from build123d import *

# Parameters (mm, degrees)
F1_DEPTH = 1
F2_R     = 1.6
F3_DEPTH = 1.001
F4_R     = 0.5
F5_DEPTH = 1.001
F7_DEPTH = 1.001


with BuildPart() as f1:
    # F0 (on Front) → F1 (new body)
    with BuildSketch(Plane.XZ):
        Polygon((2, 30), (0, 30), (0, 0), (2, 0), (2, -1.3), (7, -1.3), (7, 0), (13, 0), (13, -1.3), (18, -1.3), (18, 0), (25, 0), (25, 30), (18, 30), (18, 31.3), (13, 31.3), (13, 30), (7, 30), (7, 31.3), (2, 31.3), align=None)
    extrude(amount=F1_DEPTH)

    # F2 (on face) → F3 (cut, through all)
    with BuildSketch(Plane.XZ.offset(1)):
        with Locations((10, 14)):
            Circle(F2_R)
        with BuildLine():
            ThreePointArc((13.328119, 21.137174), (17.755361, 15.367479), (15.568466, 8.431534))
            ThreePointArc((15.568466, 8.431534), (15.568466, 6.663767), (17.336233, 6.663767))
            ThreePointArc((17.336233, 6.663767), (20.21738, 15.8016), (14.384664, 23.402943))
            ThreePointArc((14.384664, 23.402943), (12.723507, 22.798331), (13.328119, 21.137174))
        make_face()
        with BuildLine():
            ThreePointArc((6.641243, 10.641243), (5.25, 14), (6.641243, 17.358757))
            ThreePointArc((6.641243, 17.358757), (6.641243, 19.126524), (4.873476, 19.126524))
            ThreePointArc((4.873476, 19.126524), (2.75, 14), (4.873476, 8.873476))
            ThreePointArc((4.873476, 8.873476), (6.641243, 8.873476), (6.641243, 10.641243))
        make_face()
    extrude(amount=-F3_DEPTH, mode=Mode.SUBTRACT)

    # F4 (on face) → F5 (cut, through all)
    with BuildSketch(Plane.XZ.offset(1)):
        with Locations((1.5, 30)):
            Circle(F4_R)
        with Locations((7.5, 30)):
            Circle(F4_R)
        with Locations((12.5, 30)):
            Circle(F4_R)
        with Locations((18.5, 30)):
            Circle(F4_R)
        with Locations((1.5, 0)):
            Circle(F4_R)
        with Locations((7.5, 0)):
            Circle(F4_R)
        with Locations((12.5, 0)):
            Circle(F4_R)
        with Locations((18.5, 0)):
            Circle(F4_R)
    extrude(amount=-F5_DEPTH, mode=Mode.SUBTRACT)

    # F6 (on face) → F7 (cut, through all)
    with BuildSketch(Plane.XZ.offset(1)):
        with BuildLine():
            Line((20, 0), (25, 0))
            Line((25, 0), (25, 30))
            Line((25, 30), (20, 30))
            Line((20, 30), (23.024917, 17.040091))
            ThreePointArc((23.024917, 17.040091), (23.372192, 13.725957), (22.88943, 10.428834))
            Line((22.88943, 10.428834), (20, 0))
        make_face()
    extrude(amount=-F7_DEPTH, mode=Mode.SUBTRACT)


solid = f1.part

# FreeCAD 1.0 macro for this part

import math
import FreeCAD as App
import Part
import Sketcher

V = App.Vector
Q = App.Units.Quantity

doc = App.newDocument("Part")
params = doc.addObject("Spreadsheet::Sheet", "Params")
for row, (alias, value) in enumerate([
    ("sketch1_width", "2 mm"),
    ("sketch1_width2", "5 mm"),
    ("sketch1_width3", "6 mm"),
    ("sketch1_width4", "7 mm"),
    ("sketch1_height", "30 mm"),
    ("pad1_length", "1 mm"),
    ("sketch2_diameter", "3.2 mm"),
    ("sketch2_radius", "1.25 mm"),
    ("sketch2_radius2", "4.749999 mm"),
    ("sketch3_diameter", "1 mm"),
    ("sketch4_width", "5 mm"),
    ("sketch4_height", "30 mm"),
], start=1):
    params.set(f"A{row}", alias)
    params.set(f"B{row}", "=" + value)
    params.setAlias(f"B{row}", alias)

body = doc.addObject("PartDesign::Body", "Body")

sketch1 = body.newObject("Sketcher::SketchObject", "Sketch")
sketch1.AttachmentSupport = (doc.getObject("XZ_Plane"), [""])
sketch1.MapMode = "FlatFace"
sketch1.addGeometry(Part.LineSegment(V(2, 30, 0), V(0, 30, 0)), False)
sketch1.addGeometry(Part.LineSegment(V(0, 30, 0), V(0, 0, 0)), False)
sketch1.addGeometry(Part.LineSegment(V(0, 0, 0), V(2, 0, 0)), False)
sketch1.addGeometry(Part.LineSegment(V(2, 0, 0), V(2, -1.3, 0)), False)
sketch1.addGeometry(Part.LineSegment(V(2, -1.3, 0), V(7, -1.3, 0)), False)
sketch1.addGeometry(Part.LineSegment(V(7, -1.3, 0), V(7, 0, 0)), False)
sketch1.addGeometry(Part.LineSegment(V(7, 0, 0), V(13, 0, 0)), False)
sketch1.addGeometry(Part.LineSegment(V(13, 0, 0), V(13, -1.3, 0)), False)
sketch1.addGeometry(Part.LineSegment(V(13, -1.3, 0), V(18, -1.3, 0)), False)
sketch1.addGeometry(Part.LineSegment(V(18, -1.3, 0), V(18, 0, 0)), False)
sketch1.addGeometry(Part.LineSegment(V(18, 0, 0), V(25, 0, 0)), False)
sketch1.addGeometry(Part.LineSegment(V(25, 0, 0), V(25, 30, 0)), False)
sketch1.addGeometry(Part.LineSegment(V(25, 30, 0), V(18, 30, 0)), False)
sketch1.addGeometry(Part.LineSegment(V(18, 30, 0), V(18, 31.3, 0)), False)
sketch1.addGeometry(Part.LineSegment(V(18, 31.3, 0), V(13, 31.3, 0)), False)
sketch1.addGeometry(Part.LineSegment(V(13, 31.3, 0), V(13, 30, 0)), False)
sketch1.addGeometry(Part.LineSegment(V(13, 30, 0), V(7, 30, 0)), False)
sketch1.addGeometry(Part.LineSegment(V(7, 30, 0), V(7, 31.3, 0)), False)
sketch1.addGeometry(Part.LineSegment(V(7, 31.3, 0), V(2, 31.3, 0)), False)
sketch1.addGeometry(Part.LineSegment(V(2, 31.3, 0), V(2, 30, 0)), False)
sketch1.addConstraint(Sketcher.Constraint("Coincident", 0, 2, 1, 1))
sketch1.addConstraint(Sketcher.Constraint("Coincident", 1, 2, 2, 1))
sketch1.addConstraint(Sketcher.Constraint("Coincident", 2, 2, 3, 1))
sketch1.addConstraint(Sketcher.Constraint("Coincident", 3, 2, 4, 1))
sketch1.addConstraint(Sketcher.Constraint("Coincident", 4, 2, 5, 1))
sketch1.addConstraint(Sketcher.Constraint("Coincident", 5, 2, 6, 1))
sketch1.addConstraint(Sketcher.Constraint("Coincident", 6, 2, 7, 1))
sketch1.addConstraint(Sketcher.Constraint("Coincident", 7, 2, 8, 1))
sketch1.addConstraint(Sketcher.Constraint("Coincident", 8, 2, 9, 1))
sketch1.addConstraint(Sketcher.Constraint("Coincident", 9, 2, 10, 1))
sketch1.addConstraint(Sketcher.Constraint("Coincident", 10, 2, 11, 1))
sketch1.addConstraint(Sketcher.Constraint("Coincident", 11, 2, 12, 1))
sketch1.addConstraint(Sketcher.Constraint("Coincident", 12, 2, 13, 1))
sketch1.addConstraint(Sketcher.Constraint("Coincident", 13, 2, 14, 1))
sketch1.addConstraint(Sketcher.Constraint("Coincident", 14, 2, 15, 1))
sketch1.addConstraint(Sketcher.Constraint("Coincident", 15, 2, 16, 1))
sketch1.addConstraint(Sketcher.Constraint("Coincident", 16, 2, 17, 1))
sketch1.addConstraint(Sketcher.Constraint("Coincident", 17, 2, 18, 1))
sketch1.addConstraint(Sketcher.Constraint("Coincident", 18, 2, 19, 1))
sketch1.addConstraint(Sketcher.Constraint("Coincident", 19, 2, 0, 1))
sketch1.addConstraint(Sketcher.Constraint("Horizontal", 0))
sketch1.addConstraint(Sketcher.Constraint("Vertical", 1))
sketch1.addConstraint(Sketcher.Constraint("Horizontal", 2))
sketch1.addConstraint(Sketcher.Constraint("Vertical", 3))
sketch1.addConstraint(Sketcher.Constraint("Horizontal", 4))
sketch1.addConstraint(Sketcher.Constraint("Vertical", 5))
sketch1.addConstraint(Sketcher.Constraint("Horizontal", 6))
sketch1.addConstraint(Sketcher.Constraint("Vertical", 7))
sketch1.addConstraint(Sketcher.Constraint("Horizontal", 8))
sketch1.addConstraint(Sketcher.Constraint("Vertical", 9))
sketch1.addConstraint(Sketcher.Constraint("Horizontal", 10))
sketch1.addConstraint(Sketcher.Constraint("Vertical", 11))
sketch1.addConstraint(Sketcher.Constraint("Horizontal", 12))
sketch1.addConstraint(Sketcher.Constraint("Vertical", 13))
sketch1.addConstraint(Sketcher.Constraint("Horizontal", 14))
sketch1.addConstraint(Sketcher.Constraint("Vertical", 15))
sketch1.addConstraint(Sketcher.Constraint("Horizontal", 16))
sketch1.addConstraint(Sketcher.Constraint("Vertical", 17))
sketch1.addConstraint(Sketcher.Constraint("Horizontal", 18))
sketch1.addConstraint(Sketcher.Constraint("Vertical", 19))
sketch1.addConstraint(Sketcher.Constraint("Coincident", 1, 2, -1, 1))
sketch1.addConstraint(Sketcher.Constraint("PointOnObject", 5, 2, -1))
sketch1.addConstraint(Sketcher.Constraint("PointOnObject", 9, 2, -1))
sketch1.addConstraint(Sketcher.Constraint("Horizontal", 4, 2, 7, 2))
sketch1.addConstraint(Sketcher.Constraint("Horizontal", 0, 2, 11, 2))
sketch1.addConstraint(Sketcher.Constraint("Horizontal", 12, 2, 15, 2))
sketch1.addConstraint(Sketcher.Constraint("Horizontal", 14, 2, 17, 2))
sketch1.addConstraint(Sketcher.Constraint("Vertical", 9, 2, 12, 2))
sketch1.addConstraint(Sketcher.Constraint("Vertical", 7, 2, 14, 2))
sketch1.addConstraint(Sketcher.Constraint("Vertical", 5, 2, 16, 2))
sketch1.addConstraint(Sketcher.Constraint("Vertical", 3, 2, 18, 2))
sketch1.addConstraint(Sketcher.Constraint("Equal", 4, 8))
sketch1.addConstraint(Sketcher.Constraint("Equal", 9, 13))
sketch1.addConstraint(Sketcher.Constraint("DistanceX", 0, 2, 0, 1, Q("2 mm")))
sketch1.addConstraint(Sketcher.Constraint("DistanceX", 4, 1, 4, 2, Q("5 mm")))
sketch1.addConstraint(Sketcher.Constraint("DistanceX", 6, 1, 6, 2, Q("6 mm")))
sketch1.addConstraint(Sketcher.Constraint("DistanceX", 10, 1, 10, 2, Q("7 mm")))
sketch1.addConstraint(Sketcher.Constraint("DistanceY", 1, 2, 1, 1, Q("30 mm")))
sketch1.addConstraint(Sketcher.Constraint("DistanceY", 3, 2, 3, 1, Q("1.3 mm")))
sketch1.setExpression("Constraints[53]", "Params.sketch1_width")
sketch1.setExpression("Constraints[54]", "Params.sketch1_width2")
sketch1.setExpression("Constraints[55]", "Params.sketch1_width3")
sketch1.setExpression("Constraints[56]", "Params.sketch1_width4")
sketch1.setExpression("Constraints[57]", "Params.sketch1_height")
pad1 = body.newObject("PartDesign::Pad", "Pad")
pad1.Profile = sketch1
pad1.setExpression("Length", "Params.pad1_length")

sketch2 = body.newObject("Sketcher::SketchObject", "Sketch001")
sketch2.AttachmentSupport = (doc.getObject("XZ_Plane"), [""])
sketch2.MapMode = "FlatFace"
sketch2.AttachmentOffset = App.Placement(V(0, 0, 1), App.Rotation())
sketch2.addGeometry(Part.Circle(V(10, 14, 0), V(0, 0, 1), 1.6), False)
sketch2.addGeometry(Part.ArcOfCircle(Part.Circle(V(10, 14, 0), V(0, 0, 1), 7.9), math.radians(-45), math.radians(65)), False)
sketch2.addGeometry(Part.ArcOfCircle(Part.Circle(V(16.5, 7.5, 0), V(0, 0, 1), 1.3), math.radians(135), math.radians(315)), False)
sketch2.addGeometry(Part.ArcOfCircle(Part.Circle(V(10, 14, 0), V(0, 0, 1), 10.4), math.radians(-45), math.radians(65)), False)
sketch2.addGeometry(Part.ArcOfCircle(Part.Circle(V(13.9, 22.3, 0), V(0, 0, 1), 1.2), math.radians(65), math.radians(245)), False)
sketch2.addGeometry(Part.ArcOfCircle(Part.Circle(V(10, 14, 0), V(0, 0, 1), 4.7), math.radians(135), math.radians(225)), False)
sketch2.addGeometry(Part.ArcOfCircle(Part.Circle(V(5.8, 18.2, 0), V(0, 0, 1), 1.3), math.radians(-45), math.radians(135)), False)
sketch2.addGeometry(Part.ArcOfCircle(Part.Circle(V(10, 14, 0), V(0, 0, 1), 7.2), math.radians(135), math.radians(225)), False)
sketch2.addGeometry(Part.ArcOfCircle(Part.Circle(V(5.8, 9.8, 0), V(0, 0, 1), 1.3), math.radians(-135), math.radians(45)), False)
sketch2.addConstraint(Sketcher.Constraint("Tangent", 1, 1, 2, 1))
sketch2.addConstraint(Sketcher.Constraint("Tangent", 2, 2, 3, 1))
sketch2.addConstraint(Sketcher.Constraint("Tangent", 3, 2, 4, 1))
sketch2.addConstraint(Sketcher.Constraint("Tangent", 4, 2, 1, 2))
sketch2.addConstraint(Sketcher.Constraint("Tangent", 5, 1, 6, 1))
sketch2.addConstraint(Sketcher.Constraint("Tangent", 6, 2, 7, 1))
sketch2.addConstraint(Sketcher.Constraint("Tangent", 7, 2, 8, 1))
sketch2.addConstraint(Sketcher.Constraint("Tangent", 8, 2, 5, 2))
sketch2.addConstraint(Sketcher.Constraint("Coincident", 1, 3, 0, 3))
sketch2.addConstraint(Sketcher.Constraint("Coincident", 3, 3, 0, 3))
sketch2.addConstraint(Sketcher.Constraint("Coincident", 5, 3, 0, 3))
sketch2.addConstraint(Sketcher.Constraint("Coincident", 7, 3, 0, 3))
sketch2.addConstraint(Sketcher.Constraint("Equal", 4, 6))
sketch2.addConstraint(Sketcher.Constraint("Vertical", 6, 3, 8, 3))
sketch2.addConstraint(Sketcher.Constraint("Diameter", 0, Q("3.2 mm")))
sketch2.addConstraint(Sketcher.Constraint("Radius", 2, Q("1.25 mm")))
sketch2.addConstraint(Sketcher.Constraint("Radius", 5, Q("4.749999 mm")))
sketch2.addConstraint(Sketcher.Constraint("DistanceX", -1, 1, 0, 3, Q("10 mm")))
sketch2.addConstraint(Sketcher.Constraint("DistanceY", -1, 1, 0, 3, Q("14 mm")))
sketch2.addConstraint(Sketcher.Constraint("Radius", 1, Q("7.875001 mm")))
sketch2.addConstraint(Sketcher.Constraint("DistanceX", -1, 1, 2, 3, Q("16.45235 mm")))
sketch2.addConstraint(Sketcher.Constraint("DistanceX", -1, 1, 4, 3, Q("13.856392 mm")))
sketch2.addConstraint(Sketcher.Constraint("DistanceX", -1, 1, 6, 3, Q("5.757359 mm")))
sketch2.setExpression("Constraints[14]", "Params.sketch2_diameter")
sketch2.setExpression("Constraints[15]", "Params.sketch2_radius")
sketch2.setExpression("Constraints[16]", "Params.sketch2_radius2")
pocket1 = body.newObject("PartDesign::Pocket", "Pocket")
pocket1.Profile = sketch2
pocket1.Type = "ThroughAll"

sketch3 = body.newObject("Sketcher::SketchObject", "Sketch002")
sketch3.AttachmentSupport = (doc.getObject("XZ_Plane"), [""])
sketch3.MapMode = "FlatFace"
sketch3.AttachmentOffset = App.Placement(V(0, 0, 1), App.Rotation())
sketch3.addGeometry(Part.Circle(V(1.5, 30, 0), V(0, 0, 1), 0.5), False)
sketch3.addGeometry(Part.Circle(V(7.5, 30, 0), V(0, 0, 1), 0.5), False)
sketch3.addGeometry(Part.Circle(V(12.5, 30, 0), V(0, 0, 1), 0.5), False)
sketch3.addGeometry(Part.Circle(V(18.5, 30, 0), V(0, 0, 1), 0.5), False)
sketch3.addGeometry(Part.Circle(V(1.5, 0, 0), V(0, 0, 1), 0.5), False)
sketch3.addGeometry(Part.Circle(V(7.5, 0, 0), V(0, 0, 1), 0.5), False)
sketch3.addGeometry(Part.Circle(V(12.5, 0, 0), V(0, 0, 1), 0.5), False)
sketch3.addGeometry(Part.Circle(V(18.5, 0, 0), V(0, 0, 1), 0.5), False)
sketch3.addConstraint(Sketcher.Constraint("Equal", 0, 1))
sketch3.addConstraint(Sketcher.Constraint("Equal", 1, 2))
sketch3.addConstraint(Sketcher.Constraint("Equal", 2, 3))
sketch3.addConstraint(Sketcher.Constraint("Equal", 3, 4))
sketch3.addConstraint(Sketcher.Constraint("Equal", 4, 5))
sketch3.addConstraint(Sketcher.Constraint("Equal", 5, 6))
sketch3.addConstraint(Sketcher.Constraint("Equal", 6, 7))
sketch3.addConstraint(Sketcher.Constraint("PointOnObject", 4, 3, -1))
sketch3.addConstraint(Sketcher.Constraint("PointOnObject", 5, 3, -1))
sketch3.addConstraint(Sketcher.Constraint("PointOnObject", 6, 3, -1))
sketch3.addConstraint(Sketcher.Constraint("PointOnObject", 7, 3, -1))
sketch3.addConstraint(Sketcher.Constraint("Horizontal", 0, 3, 1, 3))
sketch3.addConstraint(Sketcher.Constraint("Horizontal", 1, 3, 2, 3))
sketch3.addConstraint(Sketcher.Constraint("Horizontal", 2, 3, 3, 3))
sketch3.addConstraint(Sketcher.Constraint("Vertical", 0, 3, 4, 3))
sketch3.addConstraint(Sketcher.Constraint("Vertical", 1, 3, 5, 3))
sketch3.addConstraint(Sketcher.Constraint("Vertical", 2, 3, 6, 3))
sketch3.addConstraint(Sketcher.Constraint("Vertical", 3, 3, 7, 3))
sketch3.addConstraint(Sketcher.Constraint("Diameter", 0, Q("1 mm")))
sketch3.addConstraint(Sketcher.Constraint("DistanceY", -1, 1, 0, 3, Q("30 mm")))
sketch3.addConstraint(Sketcher.Constraint("DistanceX", 0, 3, 1, 3, Q("6 mm")))
sketch3.addConstraint(Sketcher.Constraint("DistanceX", 1, 3, 2, 3, Q("5 mm")))
sketch3.addConstraint(Sketcher.Constraint("DistanceX", 2, 3, 3, 3, Q("6 mm")))
sketch3.addConstraint(Sketcher.Constraint("DistanceX", -1, 1, 0, 3, Q("1.5 mm")))
sketch3.setExpression("Constraints[18]", "Params.sketch3_diameter")
pocket2 = body.newObject("PartDesign::Pocket", "Pocket001")
pocket2.Profile = sketch3
pocket2.Type = "ThroughAll"

sketch4 = body.newObject("Sketcher::SketchObject", "Sketch003")
sketch4.AttachmentSupport = (doc.getObject("XZ_Plane"), [""])
sketch4.MapMode = "FlatFace"
sketch4.AttachmentOffset = App.Placement(V(0, 0, 1), App.Rotation())
sketch4.addGeometry(Part.LineSegment(V(20, 0, 0), V(25, 0, 0)), False)
sketch4.addGeometry(Part.LineSegment(V(25, 0, 0), V(25, 30, 0)), False)
sketch4.addGeometry(Part.LineSegment(V(25, 30, 0), V(20, 30, 0)), False)
sketch4.addGeometry(Part.LineSegment(V(20, 30, 0), V(23, 17, 0)), False)
sketch4.addGeometry(Part.ArcOfCircle(Part.Circle(V(10, 14, 0), V(0, 0, 1), 13), math.radians(-15), math.radians(13)), False)
sketch4.addGeometry(Part.LineSegment(V(23, 10, 0), V(20, 0, 0)), False)
sketch4.addConstraint(Sketcher.Constraint("Coincident", 0, 2, 1, 1))
sketch4.addConstraint(Sketcher.Constraint("Coincident", 1, 2, 2, 1))
sketch4.addConstraint(Sketcher.Constraint("Coincident", 2, 2, 3, 1))
sketch4.addConstraint(Sketcher.Constraint("Tangent", 3, 2, 4, 2))
sketch4.addConstraint(Sketcher.Constraint("Tangent", 4, 1, 5, 1))
sketch4.addConstraint(Sketcher.Constraint("Coincident", 5, 2, 0, 1))
sketch4.addConstraint(Sketcher.Constraint("Horizontal", 0))
sketch4.addConstraint(Sketcher.Constraint("Vertical", 1))
sketch4.addConstraint(Sketcher.Constraint("Horizontal", 2))
sketch4.addConstraint(Sketcher.Constraint("PointOnObject", 0, 2, -1))
sketch4.addConstraint(Sketcher.Constraint("Vertical", 2, 2, 5, 2))
sketch4.addConstraint(Sketcher.Constraint("DistanceX", 0, 1, 0, 2, Q("5 mm")))
sketch4.addConstraint(Sketcher.Constraint("DistanceY", 1, 1, 1, 2, Q("30 mm")))
sketch4.addConstraint(Sketcher.Constraint("DistanceY", -1, 1, 4, 3, Q("13.999999 mm")))
sketch4.addConstraint(Sketcher.Constraint("DistanceX", -1, 1, 0, 2, Q("25 mm")))
sketch4.addConstraint(Sketcher.Constraint("Radius", 4, Q("13.375007 mm")))
sketch4.addConstraint(Sketcher.Constraint("Distance", 5, Q("10.821709 mm")))
sketch4.setExpression("Constraints[11]", "Params.sketch4_width")
sketch4.setExpression("Constraints[12]", "Params.sketch4_height")
pocket3 = body.newObject("PartDesign::Pocket", "Pocket002")
pocket3.Profile = sketch4
pocket3.Type = "ThroughAll"

doc.recompute()
